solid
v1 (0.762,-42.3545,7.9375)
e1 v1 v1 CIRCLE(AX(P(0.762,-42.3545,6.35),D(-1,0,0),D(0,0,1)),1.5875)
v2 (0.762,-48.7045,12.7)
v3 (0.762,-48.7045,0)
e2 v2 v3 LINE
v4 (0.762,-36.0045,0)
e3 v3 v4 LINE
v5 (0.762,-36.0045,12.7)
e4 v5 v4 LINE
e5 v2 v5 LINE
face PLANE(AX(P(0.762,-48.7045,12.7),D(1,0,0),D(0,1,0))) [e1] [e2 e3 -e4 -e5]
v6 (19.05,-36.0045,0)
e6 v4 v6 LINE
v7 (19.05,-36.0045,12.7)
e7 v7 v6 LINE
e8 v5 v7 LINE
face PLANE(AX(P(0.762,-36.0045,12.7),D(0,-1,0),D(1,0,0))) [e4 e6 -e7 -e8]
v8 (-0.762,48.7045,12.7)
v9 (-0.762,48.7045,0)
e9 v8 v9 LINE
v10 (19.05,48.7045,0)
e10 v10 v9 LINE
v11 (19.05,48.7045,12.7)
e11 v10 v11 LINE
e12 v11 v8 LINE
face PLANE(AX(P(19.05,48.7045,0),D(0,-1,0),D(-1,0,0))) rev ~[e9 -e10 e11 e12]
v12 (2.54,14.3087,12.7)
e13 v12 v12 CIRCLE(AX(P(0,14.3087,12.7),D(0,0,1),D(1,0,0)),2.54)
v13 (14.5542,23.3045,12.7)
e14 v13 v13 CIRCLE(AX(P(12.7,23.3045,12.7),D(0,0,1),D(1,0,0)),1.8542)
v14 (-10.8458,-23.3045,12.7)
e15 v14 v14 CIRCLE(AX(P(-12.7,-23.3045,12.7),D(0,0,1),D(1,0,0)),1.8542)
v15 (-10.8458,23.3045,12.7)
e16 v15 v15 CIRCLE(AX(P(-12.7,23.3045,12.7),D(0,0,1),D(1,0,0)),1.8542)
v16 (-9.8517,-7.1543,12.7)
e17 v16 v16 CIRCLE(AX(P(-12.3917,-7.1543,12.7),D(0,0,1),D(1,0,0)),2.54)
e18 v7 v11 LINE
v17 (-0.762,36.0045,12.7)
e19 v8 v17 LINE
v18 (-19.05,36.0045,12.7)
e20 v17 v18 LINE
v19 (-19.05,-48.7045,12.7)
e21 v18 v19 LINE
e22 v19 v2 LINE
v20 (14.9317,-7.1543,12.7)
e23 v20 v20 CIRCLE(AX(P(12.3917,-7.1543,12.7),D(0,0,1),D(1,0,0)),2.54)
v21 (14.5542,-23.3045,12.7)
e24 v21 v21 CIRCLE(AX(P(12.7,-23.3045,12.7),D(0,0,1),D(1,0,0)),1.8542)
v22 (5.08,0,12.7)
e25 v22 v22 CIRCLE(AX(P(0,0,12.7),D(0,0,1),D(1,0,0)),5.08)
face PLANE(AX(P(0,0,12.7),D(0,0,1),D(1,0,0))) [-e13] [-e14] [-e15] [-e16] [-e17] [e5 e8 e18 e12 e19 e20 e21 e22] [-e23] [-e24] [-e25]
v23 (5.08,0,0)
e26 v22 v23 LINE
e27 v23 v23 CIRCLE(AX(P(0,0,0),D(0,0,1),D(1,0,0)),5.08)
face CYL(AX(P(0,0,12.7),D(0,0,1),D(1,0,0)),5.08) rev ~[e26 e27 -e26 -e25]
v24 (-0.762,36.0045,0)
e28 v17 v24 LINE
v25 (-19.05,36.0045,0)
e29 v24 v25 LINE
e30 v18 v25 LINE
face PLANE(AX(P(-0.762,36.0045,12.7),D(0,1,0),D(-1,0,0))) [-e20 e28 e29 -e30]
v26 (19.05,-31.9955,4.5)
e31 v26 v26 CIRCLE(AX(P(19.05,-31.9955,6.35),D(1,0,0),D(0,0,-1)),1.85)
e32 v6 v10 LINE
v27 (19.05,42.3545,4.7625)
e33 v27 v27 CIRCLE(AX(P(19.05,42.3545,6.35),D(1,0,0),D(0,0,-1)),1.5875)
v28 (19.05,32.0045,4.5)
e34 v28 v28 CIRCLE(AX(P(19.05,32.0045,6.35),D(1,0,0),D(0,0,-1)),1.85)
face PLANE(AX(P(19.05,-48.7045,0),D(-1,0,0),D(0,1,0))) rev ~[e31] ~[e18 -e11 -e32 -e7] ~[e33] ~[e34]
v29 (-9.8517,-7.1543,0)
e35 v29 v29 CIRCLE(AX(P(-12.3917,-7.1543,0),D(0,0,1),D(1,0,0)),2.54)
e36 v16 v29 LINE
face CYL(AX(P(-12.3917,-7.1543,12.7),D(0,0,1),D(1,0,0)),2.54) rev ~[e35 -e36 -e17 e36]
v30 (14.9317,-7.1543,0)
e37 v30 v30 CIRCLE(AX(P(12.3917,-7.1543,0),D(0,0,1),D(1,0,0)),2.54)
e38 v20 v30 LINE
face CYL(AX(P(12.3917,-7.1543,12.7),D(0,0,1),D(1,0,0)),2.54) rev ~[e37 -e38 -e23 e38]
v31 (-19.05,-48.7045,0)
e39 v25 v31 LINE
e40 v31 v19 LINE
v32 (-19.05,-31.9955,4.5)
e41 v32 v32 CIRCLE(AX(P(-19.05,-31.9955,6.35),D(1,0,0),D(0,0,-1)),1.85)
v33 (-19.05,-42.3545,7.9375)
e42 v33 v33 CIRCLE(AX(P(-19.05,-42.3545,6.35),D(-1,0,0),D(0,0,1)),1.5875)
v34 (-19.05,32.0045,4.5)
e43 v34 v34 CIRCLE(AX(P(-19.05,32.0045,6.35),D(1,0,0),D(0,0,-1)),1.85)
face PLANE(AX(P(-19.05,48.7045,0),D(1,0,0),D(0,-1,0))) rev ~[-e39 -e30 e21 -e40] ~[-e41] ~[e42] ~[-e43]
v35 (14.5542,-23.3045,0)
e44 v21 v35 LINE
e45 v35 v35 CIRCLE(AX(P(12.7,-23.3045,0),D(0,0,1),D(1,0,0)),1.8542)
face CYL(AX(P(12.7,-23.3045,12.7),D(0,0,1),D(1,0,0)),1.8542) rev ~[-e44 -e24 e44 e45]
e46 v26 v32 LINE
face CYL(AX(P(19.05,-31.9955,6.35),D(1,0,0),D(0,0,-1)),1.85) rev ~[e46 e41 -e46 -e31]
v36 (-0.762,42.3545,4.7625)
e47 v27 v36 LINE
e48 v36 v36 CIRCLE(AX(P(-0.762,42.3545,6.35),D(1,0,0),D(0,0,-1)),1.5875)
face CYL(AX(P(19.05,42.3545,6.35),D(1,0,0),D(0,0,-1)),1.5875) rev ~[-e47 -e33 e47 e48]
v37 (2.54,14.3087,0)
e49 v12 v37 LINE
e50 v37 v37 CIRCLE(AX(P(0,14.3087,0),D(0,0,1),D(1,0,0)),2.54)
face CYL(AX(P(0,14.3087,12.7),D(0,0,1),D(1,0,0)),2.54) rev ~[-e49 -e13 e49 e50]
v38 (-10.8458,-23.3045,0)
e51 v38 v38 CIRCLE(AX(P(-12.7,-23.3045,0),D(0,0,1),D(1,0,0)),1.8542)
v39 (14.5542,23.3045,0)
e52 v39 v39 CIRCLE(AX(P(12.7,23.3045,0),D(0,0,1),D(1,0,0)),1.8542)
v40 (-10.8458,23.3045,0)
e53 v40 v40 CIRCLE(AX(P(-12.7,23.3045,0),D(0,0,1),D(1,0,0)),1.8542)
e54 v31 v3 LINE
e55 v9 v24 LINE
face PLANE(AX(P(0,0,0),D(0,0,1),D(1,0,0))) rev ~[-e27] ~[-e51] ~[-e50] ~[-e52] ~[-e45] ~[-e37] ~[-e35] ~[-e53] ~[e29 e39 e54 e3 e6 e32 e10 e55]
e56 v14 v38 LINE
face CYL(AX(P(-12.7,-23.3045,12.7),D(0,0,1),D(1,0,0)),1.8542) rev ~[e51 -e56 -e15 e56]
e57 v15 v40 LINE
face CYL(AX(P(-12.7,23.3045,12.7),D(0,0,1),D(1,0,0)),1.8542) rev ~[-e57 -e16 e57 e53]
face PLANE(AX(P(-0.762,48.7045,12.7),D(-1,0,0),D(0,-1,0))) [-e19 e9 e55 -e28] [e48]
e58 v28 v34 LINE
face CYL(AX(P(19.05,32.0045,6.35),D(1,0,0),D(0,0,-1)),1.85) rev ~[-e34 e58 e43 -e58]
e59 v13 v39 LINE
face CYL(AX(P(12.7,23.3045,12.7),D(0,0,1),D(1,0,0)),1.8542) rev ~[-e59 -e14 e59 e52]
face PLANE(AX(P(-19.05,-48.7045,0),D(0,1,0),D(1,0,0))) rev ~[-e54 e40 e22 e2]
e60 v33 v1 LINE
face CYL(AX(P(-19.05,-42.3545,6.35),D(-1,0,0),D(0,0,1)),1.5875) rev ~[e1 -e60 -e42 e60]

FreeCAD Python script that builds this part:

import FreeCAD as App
import Part
import Sketcher
Q = App.Units.Quantity

doc = App.newDocument("Part")
body = doc.addObject("PartDesign::Body", "Body")

# Sketch on XY plane
sketch1 = body.newObject("Sketcher::SketchObject", "Sketch")
sketch1.AttachmentSupport = (doc.getObject("XY_Plane"), [""])
sketch1.MapMode = "FlatFace"
sketch1.addGeometry([
    Part.LineSegment(App.Vector(-19, 49, 0), App.Vector(-19, -49, 0)),
    Part.LineSegment(App.Vector(-19, -49, 0), App.Vector(19, -49, 0)),
    Part.LineSegment(App.Vector(19, -49, 0), App.Vector(19, 49, 0)),
    Part.LineSegment(App.Vector(19, 49, 0), App.Vector(-19, 49, 0)),
], False)
sketch1.addConstraint([
    Sketcher.Constraint("Coincident", 0, 2, 1, 1),
    Sketcher.Constraint("Coincident", 1, 2, 2, 1),
    Sketcher.Constraint("Coincident", 2, 2, 3, 1),
    Sketcher.Constraint("Coincident", 3, 2, 0, 1),
    Sketcher.Constraint("Vertical", 0),
    Sketcher.Constraint("Horizontal", 1),
    Sketcher.Constraint("Vertical", 2),
    Sketcher.Constraint("Horizontal", 3),
    Sketcher.Constraint("Symmetric", 0, 2, 2, 2, -1, 1),
    Sketcher.Constraint("DistanceX", 1, 1, 1, 2, Q("1.5 in")),
    Sketcher.Constraint("DistanceY", 0, 2, 0, 1, Q("3.835 in")),
])
pad1 = body.newObject("PartDesign::Pad", "Pad")
pad1.Profile = sketch1
pad1.Length = Q("0.5 in")

# Sketch on XY plane
sketch2 = body.newObject("Sketcher::SketchObject", "Sketch001")
sketch2.AttachmentSupport = (doc.getObject("XY_Plane"), [""])
sketch2.MapMode = "FlatFace"
sketch2.AttachmentOffset = App.Placement(App.Vector(0, 0, 0.5 * 25.4), App.Rotation())
sketch2.addGeometry([
    Part.LineSegment(App.Vector(-1, 49, 0), App.Vector(-19, 49, 0)),
    Part.LineSegment(App.Vector(-19, 49, 0), App.Vector(-19, 36, 0)),
    Part.LineSegment(App.Vector(-19, 36, 0), App.Vector(-1, 36, 0)),
    Part.LineSegment(App.Vector(-1, 36, 0), App.Vector(-1, 49, 0)),
], False)
sketch2.addConstraint([
    Sketcher.Constraint("Coincident", 0, 2, 1, 1),
    Sketcher.Constraint("Coincident", 1, 2, 2, 1),
    Sketcher.Constraint("Coincident", 2, 2, 3, 1),
    Sketcher.Constraint("Coincident", 3, 2, 0, 1),
    Sketcher.Constraint("Horizontal", 0),
    Sketcher.Constraint("Vertical", 1),
    Sketcher.Constraint("Horizontal", 2),
    Sketcher.Constraint("Vertical", 3),
    Sketcher.Constraint("DistanceY", 1, 2, 1, 1, Q("0.5 in")),
    Sketcher.Constraint("DistanceX", 0, 2, 0, 1, Q("0.72 in")),
    Sketcher.Constraint("DistanceX", 0, 2, -1, 1, Q("0.75 in")),
    Sketcher.Constraint("DistanceY", -1, 1, 0, 2, Q("1.9175 in")),
])
pocket1 = body.newObject("PartDesign::Pocket", "Pocket")
pocket1.Profile = sketch2
pocket1.Length = Q("0.5 in")

# Sketch on XY plane
sketch3 = body.newObject("Sketcher::SketchObject", "Sketch002")
sketch3.AttachmentSupport = (doc.getObject("XY_Plane"), [""])
sketch3.MapMode = "FlatFace"
sketch3.AttachmentOffset = App.Placement(App.Vector(0, 0, 0.5 * 25.4), App.Rotation())
sketch3.addGeometry([
    Part.LineSegment(App.Vector(1, -49, 0), App.Vector(19, -49, 0)),
    Part.LineSegment(App.Vector(19, -49, 0), App.Vector(19, -36, 0)),
    Part.LineSegment(App.Vector(19, -36, 0), App.Vector(1, -36, 0)),
    Part.LineSegment(App.Vector(1, -36, 0), App.Vector(1, -49, 0)),
], False)
sketch3.addConstraint([
    Sketcher.Constraint("Coincident", 0, 2, 1, 1),
    Sketcher.Constraint("Coincident", 1, 2, 2, 1),
    Sketcher.Constraint("Coincident", 2, 2, 3, 1),
    Sketcher.Constraint("Coincident", 3, 2, 0, 1),
    Sketcher.Constraint("Horizontal", 0),
    Sketcher.Constraint("Vertical", 1),
    Sketcher.Constraint("Horizontal", 2),
    Sketcher.Constraint("Vertical", 3),
    Sketcher.Constraint("DistanceY", 1, 1, 1, 2, Q("0.5 in")),
    Sketcher.Constraint("DistanceX", 0, 1, 0, 2, Q("0.72 in")),
    Sketcher.Constraint("DistanceX", -1, 1, 0, 2, Q("0.75 in")),
    Sketcher.Constraint("DistanceY", 0, 2, -1, 1, Q("1.9175 in")),
])
pocket2 = body.newObject("PartDesign::Pocket", "Pocket001")
pocket2.Profile = sketch3
pocket2.Length = Q("0.5 in")

# Sketch on XY plane
sketch4 = body.newObject("Sketcher::SketchObject", "Sketch003")
sketch4.AttachmentSupport = (doc.getObject("XY_Plane"), [""])
sketch4.MapMode = "FlatFace"
sketch4.AttachmentOffset = App.Placement(App.Vector(0, 0, 0.5 * 25.4), App.Rotation())
sketch4.addGeometry(Part.Circle(App.Vector(0, 0, 0), App.Vector(0, 0, 1), 5), False)
sketch4.addConstraint([
    Sketcher.Constraint("Coincident", 0, 3, -1, 1),
    Sketcher.Constraint("Diameter", 0, Q("0.4 in")),
])
pocket3 = body.newObject("PartDesign::Pocket", "Pocket002")
pocket3.Profile = sketch4
pocket3.Length = Q("0.5 in")

# Sketch on YZ plane
sketch5 = body.newObject("Sketcher::SketchObject", "Sketch004")
sketch5.AttachmentSupport = (doc.getObject("YZ_Plane"), [""])
sketch5.MapMode = "FlatFace"
sketch5.AttachmentOffset = App.Placement(App.Vector(0, 0, 0.75 * 25.4), App.Rotation())
sketch5.addGeometry(Part.Circle(App.Vector(42.4, 6.3, 0), App.Vector(0, 0, 1), 1.6), False)
sketch5.addConstraint([
    Sketcher.Constraint("Diameter", 0, Q("0.125 in")),
    Sketcher.Constraint("DistanceY", -1, 1, 0, 3, Q("0.25 in")),
    Sketcher.Constraint("DistanceX", -1, 1, 0, 3, Q("1.6675 in")),
])
pocket4 = body.newObject("PartDesign::Pocket", "Pocket003")
pocket4.Profile = sketch5
pocket4.Length = Q("1.35 in")

# Sketch on YZ plane
sketch6 = body.newObject("Sketcher::SketchObject", "Sketch005")
sketch6.AttachmentSupport = (doc.getObject("YZ_Plane"), [""])
sketch6.MapMode = "FlatFace"
sketch6.AttachmentOffset = App.Placement(App.Vector(0, 0, -0.75 * 25.4), App.Rotation())
sketch6.addGeometry(Part.Circle(App.Vector(-42.4, 6.3, 0), App.Vector(0, 0, 1), 1.6), False)
sketch6.addConstraint([
    Sketcher.Constraint("Diameter", 0, Q("0.125 in")),
    Sketcher.Constraint("DistanceY", -1, 1, 0, 3, Q("0.25 in")),
    Sketcher.Constraint("DistanceX", 0, 3, -1, 1, Q("1.6675 in")),
])
pocket5 = body.newObject("PartDesign::Pocket", "Pocket004")
pocket5.Profile = sketch6
pocket5.Length = Q("0.815 in")
pocket5.Reversed = True

# Sketch on XY plane
sketch7 = body.newObject("Sketcher::SketchObject", "Sketch006")
sketch7.AttachmentSupport = (doc.getObject("XY_Plane"), [""])
sketch7.MapMode = "FlatFace"
sketch7.AttachmentOffset = App.Placement(App.Vector(0, 0, 0.5 * 25.4), App.Rotation())
sketch7.addGeometry([
    Part.Circle(App.Vector(-12.4, -7.2, 0), App.Vector(0, 0, 1), 2.5),
    Part.Circle(App.Vector(0, 14.3, 0), App.Vector(0, 0, 1), 2.5),
    Part.Circle(App.Vector(12.4, -7.2, 0), App.Vector(0, 0, 1), 2.5),
], False)
sketch7.addConstraint([
    Sketcher.Constraint("Equal", 0, 1),
    Sketcher.Constraint("Equal", 1, 2),
    Sketcher.Constraint("Symmetric", 0, 3, 2, 3, -2),
    Sketcher.Constraint("PointOnObject", 1, 3, -2),
    Sketcher.Constraint("Diameter", 0, Q("0.2 in")),
    Sketcher.Constraint("DistanceY", 0, 3, 1, 3, Q("0.845 in")),
    Sketcher.Constraint("DistanceX", 0, 3, -1, 1, Q("12.3917 mm")),
    Sketcher.Constraint("DistanceY", 0, 3, -1, 1, Q("7.1543 mm")),
])
pocket6 = body.newObject("PartDesign::Pocket", "Pocket005")
pocket6.Profile = sketch7
pocket6.Length = Q("0.5 in")

# Sketch on YZ plane
sketch8 = body.newObject("Sketcher::SketchObject", "Sketch007")
sketch8.AttachmentSupport = (doc.getObject("YZ_Plane"), [""])
sketch8.MapMode = "FlatFace"
sketch8.AttachmentOffset = App.Placement(App.Vector(0, 0, 0.75 * 25.4), App.Rotation())
sketch8.addGeometry([
    Part.Circle(App.Vector(32, 6.3, 0), App.Vector(0, 0, 1), 1.9),
    Part.Circle(App.Vector(-32, 6.3, 0), App.Vector(0, 0, 1), 1.9),
], False)
sketch8.addConstraint([
    Sketcher.Constraint("Equal", 0, 1),
    Sketcher.Constraint("Horizontal", 0, 3, 1, 3),
    Sketcher.Constraint("Diameter", 0, Q("3.7 mm")),
    Sketcher.Constraint("DistanceY", -1, 1, 0, 3, Q("0.25 in")),
    Sketcher.Constraint("DistanceX", -1, 1, 0, 3, Q("32.0045 mm")),
    Sketcher.Constraint("DistanceX", 1, 3, -1, 1, Q("31.9955 mm")),
])
pocket7 = body.newObject("PartDesign::Pocket", "Pocket006")
pocket7.Profile = sketch8
pocket7.Length = Q("1.5 in")

# Sketch on XY plane
sketch9 = body.newObject("Sketcher::SketchObject", "Sketch008")
sketch9.AttachmentSupport = (doc.getObject("XY_Plane"), [""])
sketch9.MapMode = "FlatFace"
sketch9.AttachmentOffset = App.Placement(App.Vector(0, 0, 0.5 * 25.4), App.Rotation())
sketch9.addGeometry([
    Part.Circle(App.Vector(-12.7, 23.3, 0), App.Vector(0, 0, 1), 1.9),
    Part.Circle(App.Vector(12.7, 23.3, 0), App.Vector(0, 0, 1), 1.9),
    Part.Circle(App.Vector(12.7, -23.3, 0), App.Vector(0, 0, 1), 1.9),
    Part.Circle(App.Vector(-12.7, -23.3, 0), App.Vector(0, 0, 1), 1.9),
], False)
sketch9.addConstraint([
    Sketcher.Constraint("Equal", 0, 1),
    Sketcher.Constraint("Equal", 1, 2),
    Sketcher.Constraint("Equal", 2, 3),
    Sketcher.Constraint("Symmetric", 0, 3, 2, 3, -1, 1),
    Sketcher.Constraint("Symmetric", 1, 3, 3, 3, -1, 1),
    Sketcher.Constraint("Symmetric", 0, 3, 1, 3, -2),
    Sketcher.Constraint("Diameter", 0, Q("0.146 in")),
    Sketcher.Constraint("DistanceX", 0, 3, -1, 1, Q("0.5 in")),
    Sketcher.Constraint("DistanceY", 2, 3, 1, 3, Q("1.835 in")),
])
pocket8 = body.newObject("PartDesign::Pocket", "Pocket007")
pocket8.Profile = sketch9
pocket8.Length = Q("0.5 in")

doc.recompute()
